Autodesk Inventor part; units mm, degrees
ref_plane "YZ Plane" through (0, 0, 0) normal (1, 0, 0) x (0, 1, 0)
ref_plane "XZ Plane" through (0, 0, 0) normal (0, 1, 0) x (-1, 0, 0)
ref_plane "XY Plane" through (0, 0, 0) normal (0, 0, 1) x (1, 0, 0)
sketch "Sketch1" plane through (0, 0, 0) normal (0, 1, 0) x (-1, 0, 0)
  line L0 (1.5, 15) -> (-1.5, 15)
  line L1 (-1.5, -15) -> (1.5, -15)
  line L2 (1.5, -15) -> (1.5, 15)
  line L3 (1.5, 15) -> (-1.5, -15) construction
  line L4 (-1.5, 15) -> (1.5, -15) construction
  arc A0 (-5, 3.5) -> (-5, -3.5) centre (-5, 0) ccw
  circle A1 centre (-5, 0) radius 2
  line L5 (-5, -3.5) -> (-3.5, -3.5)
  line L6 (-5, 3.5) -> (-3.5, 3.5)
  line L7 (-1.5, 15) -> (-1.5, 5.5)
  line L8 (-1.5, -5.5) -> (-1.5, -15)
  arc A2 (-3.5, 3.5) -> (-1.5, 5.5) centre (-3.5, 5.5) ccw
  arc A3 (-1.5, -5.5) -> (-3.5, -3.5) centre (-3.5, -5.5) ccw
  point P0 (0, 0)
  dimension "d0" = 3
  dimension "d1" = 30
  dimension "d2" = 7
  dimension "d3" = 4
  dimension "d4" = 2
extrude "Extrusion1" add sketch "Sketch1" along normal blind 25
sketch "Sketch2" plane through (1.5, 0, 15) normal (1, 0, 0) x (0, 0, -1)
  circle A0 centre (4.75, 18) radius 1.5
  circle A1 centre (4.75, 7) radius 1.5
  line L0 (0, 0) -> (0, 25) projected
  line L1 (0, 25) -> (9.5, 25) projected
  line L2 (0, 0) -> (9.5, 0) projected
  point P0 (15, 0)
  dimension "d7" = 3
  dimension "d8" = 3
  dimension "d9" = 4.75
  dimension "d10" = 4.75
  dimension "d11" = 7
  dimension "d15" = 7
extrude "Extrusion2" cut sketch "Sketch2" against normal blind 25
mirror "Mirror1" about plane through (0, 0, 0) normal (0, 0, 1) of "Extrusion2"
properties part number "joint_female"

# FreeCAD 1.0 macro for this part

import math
import FreeCAD as App
import Part
import Sketcher
from FreeCAD import Vector

doc = App.newDocument("Part")
params = doc.addObject("Spreadsheet::Sheet", "Params")
for row, (alias, value) in enumerate([
    ("sketch1_diameter", "4 mm"),
    ("sketch1_radius", "3.5 mm"),
    ("sketch1_width", "3 mm"),
    ("sketch1_height", "30 mm"),
    ("sketch1_width2", "1.5 mm"),
    ("pad1_length", "25 mm"),
    ("sketch2_diameter", "3 mm"),
    ("pocket1_length", "25 mm"),
], start=1):
    params.set(f"A{row}", alias)
    params.set(f"B{row}", "=" + value)
    params.setAlias(f"B{row}", alias)

body = doc.addObject("PartDesign::Body", "Body")

sketch1 = body.newObject("Sketcher::SketchObject", "Sketch")
sketch1.AttachmentSupport = (doc.getObject("XZ_Plane"), [""])
sketch1.MapMode = "FlatFace"
sketch1.addGeometry([
    Part.LineSegment(Vector(-1.5, -15, 0), Vector(-1.5, 15, 0)),
    Part.LineSegment(Vector(-1.5, 15, 0), Vector(1.5, 15, 0)),
    Part.LineSegment(Vector(1.5, 15, 0), Vector(1.5, 5.5, 0)),
    Part.ArcOfCircle(Part.Circle(Vector(3.5, 5.5, 0), Vector(0, 0, 1), 2), math.radians(180), math.radians(270)),
    Part.LineSegment(Vector(3.5, 3.5, 0), Vector(5, 3.5, 0)),
    Part.ArcOfCircle(Part.Circle(Vector(5, 0, 0), Vector(0, 0, 1), 3.5), math.radians(-90), math.radians(90)),
    Part.LineSegment(Vector(5, -3.5, 0), Vector(3.5, -3.5, 0)),
    Part.ArcOfCircle(Part.Circle(Vector(3.5, -5.5, 0), Vector(0, 0, 1), 2), math.radians(90), math.radians(180)),
    Part.LineSegment(Vector(1.5, -5.5, 0), Vector(1.5, -15, 0)),
    Part.LineSegment(Vector(1.5, -15, 0), Vector(-1.5, -15, 0)),
    Part.Circle(Vector(5, 0, 0), Vector(0, 0, 1), 2),
], False)
sketch1.addConstraint([
    Sketcher.Constraint("Coincident", 0, 2, 1, 1),
    Sketcher.Constraint("Coincident", 1, 2, 2, 1),
    Sketcher.Constraint("Tangent", 2, 2, 3, 1),
    Sketcher.Constraint("Tangent", 3, 2, 4, 1),
    Sketcher.Constraint("Tangent", 4, 2, 5, 2),
    Sketcher.Constraint("Tangent", 5, 1, 6, 1),
    Sketcher.Constraint("Tangent", 6, 2, 7, 1),
    Sketcher.Constraint("Tangent", 7, 2, 8, 1),
    Sketcher.Constraint("Coincident", 8, 2, 9, 1),
    Sketcher.Constraint("Coincident", 9, 2, 0, 1),
    Sketcher.Constraint("Vertical", 0),
    Sketcher.Constraint("Horizontal", 1),
    Sketcher.Constraint("Vertical", 2),
    Sketcher.Constraint("Horizontal", 4),
    Sketcher.Constraint("Horizontal", 6),
    Sketcher.Constraint("Vertical", 8),
    Sketcher.Constraint("Horizontal", 9),
    Sketcher.Constraint("Coincident", 10, 3, 5, 3),
    Sketcher.Constraint("Equal", 3, 7),
    Sketcher.Constraint("Equal", 7, 10),
    Sketcher.Constraint("Symmetric", 0, 2, 8, 2, -1, 1),
    Sketcher.Constraint("Symmetric", 3, 3, 7, 3, -1),
    Sketcher.Constraint("Diameter", 10, 4.0),
    Sketcher.Constraint("Radius", 5, 3.5),
    Sketcher.Constraint("DistanceX", 1, 1, 1, 2, 3.0),
    Sketcher.Constraint("DistanceY", 0, 1, 0, 2, 30.0),
    Sketcher.Constraint("DistanceX", 4, 1, 4, 2, 1.5),
])
sketch1.setExpression("Constraints[22]", "Params.sketch1_diameter")
sketch1.setExpression("Constraints[23]", "Params.sketch1_radius")
sketch1.setExpression("Constraints[24]", "Params.sketch1_width")
sketch1.setExpression("Constraints[25]", "Params.sketch1_height")
sketch1.setExpression("Constraints[26]", "Params.sketch1_width2")
pad1 = body.newObject("PartDesign::Pad", "Pad")
pad1.Profile = sketch1
pad1.setExpression("Length", "Params.pad1_length")
pad1.Reversed = True

sketch2 = body.newObject("Sketcher::SketchObject", "Sketch001")
sketch2.AttachmentSupport = (doc.getObject("YZ_Plane"), [""])
sketch2.MapMode = "FlatFace"
sketch2.AttachmentOffset = App.Placement(Vector(0, 0, 1.5), App.Rotation())
sketch2.addGeometry([
    Part.Circle(Vector(18, 10.2, 0), Vector(0, 0, 1), 1.5),
    Part.Circle(Vector(7, 10.2, 0), Vector(0, 0, 1), 1.5),
], False)
sketch2.addConstraint([
    Sketcher.Constraint("Equal", 0, 1),
    Sketcher.Constraint("Horizontal", 0, 3, 1, 3),
    Sketcher.Constraint("Diameter", 0, 3.0),
    Sketcher.Constraint("DistanceX", -1, 1, 1, 3, 7.0),
    Sketcher.Constraint("DistanceX", -1, 1, 0, 3, 18.0),
    Sketcher.Constraint("DistanceY", -1, 1, 0, 3, 10.25),
])
sketch2.setExpression("Constraints[2]", "Params.sketch2_diameter")
pocket1 = body.newObject("PartDesign::Pocket", "Pocket")
pocket1.Profile = sketch2
pocket1.setExpression("Length", "Params.pocket1_length")
doc.recompute()

mirrored = body.newObject("PartDesign::Mirrored", "Mirrored")
mirrored.Originals = [pocket1]
mirrored.MirrorPlane = (doc.getObject("XY_Plane"), [""])
body.Tip = mirrored

doc.recompute()
